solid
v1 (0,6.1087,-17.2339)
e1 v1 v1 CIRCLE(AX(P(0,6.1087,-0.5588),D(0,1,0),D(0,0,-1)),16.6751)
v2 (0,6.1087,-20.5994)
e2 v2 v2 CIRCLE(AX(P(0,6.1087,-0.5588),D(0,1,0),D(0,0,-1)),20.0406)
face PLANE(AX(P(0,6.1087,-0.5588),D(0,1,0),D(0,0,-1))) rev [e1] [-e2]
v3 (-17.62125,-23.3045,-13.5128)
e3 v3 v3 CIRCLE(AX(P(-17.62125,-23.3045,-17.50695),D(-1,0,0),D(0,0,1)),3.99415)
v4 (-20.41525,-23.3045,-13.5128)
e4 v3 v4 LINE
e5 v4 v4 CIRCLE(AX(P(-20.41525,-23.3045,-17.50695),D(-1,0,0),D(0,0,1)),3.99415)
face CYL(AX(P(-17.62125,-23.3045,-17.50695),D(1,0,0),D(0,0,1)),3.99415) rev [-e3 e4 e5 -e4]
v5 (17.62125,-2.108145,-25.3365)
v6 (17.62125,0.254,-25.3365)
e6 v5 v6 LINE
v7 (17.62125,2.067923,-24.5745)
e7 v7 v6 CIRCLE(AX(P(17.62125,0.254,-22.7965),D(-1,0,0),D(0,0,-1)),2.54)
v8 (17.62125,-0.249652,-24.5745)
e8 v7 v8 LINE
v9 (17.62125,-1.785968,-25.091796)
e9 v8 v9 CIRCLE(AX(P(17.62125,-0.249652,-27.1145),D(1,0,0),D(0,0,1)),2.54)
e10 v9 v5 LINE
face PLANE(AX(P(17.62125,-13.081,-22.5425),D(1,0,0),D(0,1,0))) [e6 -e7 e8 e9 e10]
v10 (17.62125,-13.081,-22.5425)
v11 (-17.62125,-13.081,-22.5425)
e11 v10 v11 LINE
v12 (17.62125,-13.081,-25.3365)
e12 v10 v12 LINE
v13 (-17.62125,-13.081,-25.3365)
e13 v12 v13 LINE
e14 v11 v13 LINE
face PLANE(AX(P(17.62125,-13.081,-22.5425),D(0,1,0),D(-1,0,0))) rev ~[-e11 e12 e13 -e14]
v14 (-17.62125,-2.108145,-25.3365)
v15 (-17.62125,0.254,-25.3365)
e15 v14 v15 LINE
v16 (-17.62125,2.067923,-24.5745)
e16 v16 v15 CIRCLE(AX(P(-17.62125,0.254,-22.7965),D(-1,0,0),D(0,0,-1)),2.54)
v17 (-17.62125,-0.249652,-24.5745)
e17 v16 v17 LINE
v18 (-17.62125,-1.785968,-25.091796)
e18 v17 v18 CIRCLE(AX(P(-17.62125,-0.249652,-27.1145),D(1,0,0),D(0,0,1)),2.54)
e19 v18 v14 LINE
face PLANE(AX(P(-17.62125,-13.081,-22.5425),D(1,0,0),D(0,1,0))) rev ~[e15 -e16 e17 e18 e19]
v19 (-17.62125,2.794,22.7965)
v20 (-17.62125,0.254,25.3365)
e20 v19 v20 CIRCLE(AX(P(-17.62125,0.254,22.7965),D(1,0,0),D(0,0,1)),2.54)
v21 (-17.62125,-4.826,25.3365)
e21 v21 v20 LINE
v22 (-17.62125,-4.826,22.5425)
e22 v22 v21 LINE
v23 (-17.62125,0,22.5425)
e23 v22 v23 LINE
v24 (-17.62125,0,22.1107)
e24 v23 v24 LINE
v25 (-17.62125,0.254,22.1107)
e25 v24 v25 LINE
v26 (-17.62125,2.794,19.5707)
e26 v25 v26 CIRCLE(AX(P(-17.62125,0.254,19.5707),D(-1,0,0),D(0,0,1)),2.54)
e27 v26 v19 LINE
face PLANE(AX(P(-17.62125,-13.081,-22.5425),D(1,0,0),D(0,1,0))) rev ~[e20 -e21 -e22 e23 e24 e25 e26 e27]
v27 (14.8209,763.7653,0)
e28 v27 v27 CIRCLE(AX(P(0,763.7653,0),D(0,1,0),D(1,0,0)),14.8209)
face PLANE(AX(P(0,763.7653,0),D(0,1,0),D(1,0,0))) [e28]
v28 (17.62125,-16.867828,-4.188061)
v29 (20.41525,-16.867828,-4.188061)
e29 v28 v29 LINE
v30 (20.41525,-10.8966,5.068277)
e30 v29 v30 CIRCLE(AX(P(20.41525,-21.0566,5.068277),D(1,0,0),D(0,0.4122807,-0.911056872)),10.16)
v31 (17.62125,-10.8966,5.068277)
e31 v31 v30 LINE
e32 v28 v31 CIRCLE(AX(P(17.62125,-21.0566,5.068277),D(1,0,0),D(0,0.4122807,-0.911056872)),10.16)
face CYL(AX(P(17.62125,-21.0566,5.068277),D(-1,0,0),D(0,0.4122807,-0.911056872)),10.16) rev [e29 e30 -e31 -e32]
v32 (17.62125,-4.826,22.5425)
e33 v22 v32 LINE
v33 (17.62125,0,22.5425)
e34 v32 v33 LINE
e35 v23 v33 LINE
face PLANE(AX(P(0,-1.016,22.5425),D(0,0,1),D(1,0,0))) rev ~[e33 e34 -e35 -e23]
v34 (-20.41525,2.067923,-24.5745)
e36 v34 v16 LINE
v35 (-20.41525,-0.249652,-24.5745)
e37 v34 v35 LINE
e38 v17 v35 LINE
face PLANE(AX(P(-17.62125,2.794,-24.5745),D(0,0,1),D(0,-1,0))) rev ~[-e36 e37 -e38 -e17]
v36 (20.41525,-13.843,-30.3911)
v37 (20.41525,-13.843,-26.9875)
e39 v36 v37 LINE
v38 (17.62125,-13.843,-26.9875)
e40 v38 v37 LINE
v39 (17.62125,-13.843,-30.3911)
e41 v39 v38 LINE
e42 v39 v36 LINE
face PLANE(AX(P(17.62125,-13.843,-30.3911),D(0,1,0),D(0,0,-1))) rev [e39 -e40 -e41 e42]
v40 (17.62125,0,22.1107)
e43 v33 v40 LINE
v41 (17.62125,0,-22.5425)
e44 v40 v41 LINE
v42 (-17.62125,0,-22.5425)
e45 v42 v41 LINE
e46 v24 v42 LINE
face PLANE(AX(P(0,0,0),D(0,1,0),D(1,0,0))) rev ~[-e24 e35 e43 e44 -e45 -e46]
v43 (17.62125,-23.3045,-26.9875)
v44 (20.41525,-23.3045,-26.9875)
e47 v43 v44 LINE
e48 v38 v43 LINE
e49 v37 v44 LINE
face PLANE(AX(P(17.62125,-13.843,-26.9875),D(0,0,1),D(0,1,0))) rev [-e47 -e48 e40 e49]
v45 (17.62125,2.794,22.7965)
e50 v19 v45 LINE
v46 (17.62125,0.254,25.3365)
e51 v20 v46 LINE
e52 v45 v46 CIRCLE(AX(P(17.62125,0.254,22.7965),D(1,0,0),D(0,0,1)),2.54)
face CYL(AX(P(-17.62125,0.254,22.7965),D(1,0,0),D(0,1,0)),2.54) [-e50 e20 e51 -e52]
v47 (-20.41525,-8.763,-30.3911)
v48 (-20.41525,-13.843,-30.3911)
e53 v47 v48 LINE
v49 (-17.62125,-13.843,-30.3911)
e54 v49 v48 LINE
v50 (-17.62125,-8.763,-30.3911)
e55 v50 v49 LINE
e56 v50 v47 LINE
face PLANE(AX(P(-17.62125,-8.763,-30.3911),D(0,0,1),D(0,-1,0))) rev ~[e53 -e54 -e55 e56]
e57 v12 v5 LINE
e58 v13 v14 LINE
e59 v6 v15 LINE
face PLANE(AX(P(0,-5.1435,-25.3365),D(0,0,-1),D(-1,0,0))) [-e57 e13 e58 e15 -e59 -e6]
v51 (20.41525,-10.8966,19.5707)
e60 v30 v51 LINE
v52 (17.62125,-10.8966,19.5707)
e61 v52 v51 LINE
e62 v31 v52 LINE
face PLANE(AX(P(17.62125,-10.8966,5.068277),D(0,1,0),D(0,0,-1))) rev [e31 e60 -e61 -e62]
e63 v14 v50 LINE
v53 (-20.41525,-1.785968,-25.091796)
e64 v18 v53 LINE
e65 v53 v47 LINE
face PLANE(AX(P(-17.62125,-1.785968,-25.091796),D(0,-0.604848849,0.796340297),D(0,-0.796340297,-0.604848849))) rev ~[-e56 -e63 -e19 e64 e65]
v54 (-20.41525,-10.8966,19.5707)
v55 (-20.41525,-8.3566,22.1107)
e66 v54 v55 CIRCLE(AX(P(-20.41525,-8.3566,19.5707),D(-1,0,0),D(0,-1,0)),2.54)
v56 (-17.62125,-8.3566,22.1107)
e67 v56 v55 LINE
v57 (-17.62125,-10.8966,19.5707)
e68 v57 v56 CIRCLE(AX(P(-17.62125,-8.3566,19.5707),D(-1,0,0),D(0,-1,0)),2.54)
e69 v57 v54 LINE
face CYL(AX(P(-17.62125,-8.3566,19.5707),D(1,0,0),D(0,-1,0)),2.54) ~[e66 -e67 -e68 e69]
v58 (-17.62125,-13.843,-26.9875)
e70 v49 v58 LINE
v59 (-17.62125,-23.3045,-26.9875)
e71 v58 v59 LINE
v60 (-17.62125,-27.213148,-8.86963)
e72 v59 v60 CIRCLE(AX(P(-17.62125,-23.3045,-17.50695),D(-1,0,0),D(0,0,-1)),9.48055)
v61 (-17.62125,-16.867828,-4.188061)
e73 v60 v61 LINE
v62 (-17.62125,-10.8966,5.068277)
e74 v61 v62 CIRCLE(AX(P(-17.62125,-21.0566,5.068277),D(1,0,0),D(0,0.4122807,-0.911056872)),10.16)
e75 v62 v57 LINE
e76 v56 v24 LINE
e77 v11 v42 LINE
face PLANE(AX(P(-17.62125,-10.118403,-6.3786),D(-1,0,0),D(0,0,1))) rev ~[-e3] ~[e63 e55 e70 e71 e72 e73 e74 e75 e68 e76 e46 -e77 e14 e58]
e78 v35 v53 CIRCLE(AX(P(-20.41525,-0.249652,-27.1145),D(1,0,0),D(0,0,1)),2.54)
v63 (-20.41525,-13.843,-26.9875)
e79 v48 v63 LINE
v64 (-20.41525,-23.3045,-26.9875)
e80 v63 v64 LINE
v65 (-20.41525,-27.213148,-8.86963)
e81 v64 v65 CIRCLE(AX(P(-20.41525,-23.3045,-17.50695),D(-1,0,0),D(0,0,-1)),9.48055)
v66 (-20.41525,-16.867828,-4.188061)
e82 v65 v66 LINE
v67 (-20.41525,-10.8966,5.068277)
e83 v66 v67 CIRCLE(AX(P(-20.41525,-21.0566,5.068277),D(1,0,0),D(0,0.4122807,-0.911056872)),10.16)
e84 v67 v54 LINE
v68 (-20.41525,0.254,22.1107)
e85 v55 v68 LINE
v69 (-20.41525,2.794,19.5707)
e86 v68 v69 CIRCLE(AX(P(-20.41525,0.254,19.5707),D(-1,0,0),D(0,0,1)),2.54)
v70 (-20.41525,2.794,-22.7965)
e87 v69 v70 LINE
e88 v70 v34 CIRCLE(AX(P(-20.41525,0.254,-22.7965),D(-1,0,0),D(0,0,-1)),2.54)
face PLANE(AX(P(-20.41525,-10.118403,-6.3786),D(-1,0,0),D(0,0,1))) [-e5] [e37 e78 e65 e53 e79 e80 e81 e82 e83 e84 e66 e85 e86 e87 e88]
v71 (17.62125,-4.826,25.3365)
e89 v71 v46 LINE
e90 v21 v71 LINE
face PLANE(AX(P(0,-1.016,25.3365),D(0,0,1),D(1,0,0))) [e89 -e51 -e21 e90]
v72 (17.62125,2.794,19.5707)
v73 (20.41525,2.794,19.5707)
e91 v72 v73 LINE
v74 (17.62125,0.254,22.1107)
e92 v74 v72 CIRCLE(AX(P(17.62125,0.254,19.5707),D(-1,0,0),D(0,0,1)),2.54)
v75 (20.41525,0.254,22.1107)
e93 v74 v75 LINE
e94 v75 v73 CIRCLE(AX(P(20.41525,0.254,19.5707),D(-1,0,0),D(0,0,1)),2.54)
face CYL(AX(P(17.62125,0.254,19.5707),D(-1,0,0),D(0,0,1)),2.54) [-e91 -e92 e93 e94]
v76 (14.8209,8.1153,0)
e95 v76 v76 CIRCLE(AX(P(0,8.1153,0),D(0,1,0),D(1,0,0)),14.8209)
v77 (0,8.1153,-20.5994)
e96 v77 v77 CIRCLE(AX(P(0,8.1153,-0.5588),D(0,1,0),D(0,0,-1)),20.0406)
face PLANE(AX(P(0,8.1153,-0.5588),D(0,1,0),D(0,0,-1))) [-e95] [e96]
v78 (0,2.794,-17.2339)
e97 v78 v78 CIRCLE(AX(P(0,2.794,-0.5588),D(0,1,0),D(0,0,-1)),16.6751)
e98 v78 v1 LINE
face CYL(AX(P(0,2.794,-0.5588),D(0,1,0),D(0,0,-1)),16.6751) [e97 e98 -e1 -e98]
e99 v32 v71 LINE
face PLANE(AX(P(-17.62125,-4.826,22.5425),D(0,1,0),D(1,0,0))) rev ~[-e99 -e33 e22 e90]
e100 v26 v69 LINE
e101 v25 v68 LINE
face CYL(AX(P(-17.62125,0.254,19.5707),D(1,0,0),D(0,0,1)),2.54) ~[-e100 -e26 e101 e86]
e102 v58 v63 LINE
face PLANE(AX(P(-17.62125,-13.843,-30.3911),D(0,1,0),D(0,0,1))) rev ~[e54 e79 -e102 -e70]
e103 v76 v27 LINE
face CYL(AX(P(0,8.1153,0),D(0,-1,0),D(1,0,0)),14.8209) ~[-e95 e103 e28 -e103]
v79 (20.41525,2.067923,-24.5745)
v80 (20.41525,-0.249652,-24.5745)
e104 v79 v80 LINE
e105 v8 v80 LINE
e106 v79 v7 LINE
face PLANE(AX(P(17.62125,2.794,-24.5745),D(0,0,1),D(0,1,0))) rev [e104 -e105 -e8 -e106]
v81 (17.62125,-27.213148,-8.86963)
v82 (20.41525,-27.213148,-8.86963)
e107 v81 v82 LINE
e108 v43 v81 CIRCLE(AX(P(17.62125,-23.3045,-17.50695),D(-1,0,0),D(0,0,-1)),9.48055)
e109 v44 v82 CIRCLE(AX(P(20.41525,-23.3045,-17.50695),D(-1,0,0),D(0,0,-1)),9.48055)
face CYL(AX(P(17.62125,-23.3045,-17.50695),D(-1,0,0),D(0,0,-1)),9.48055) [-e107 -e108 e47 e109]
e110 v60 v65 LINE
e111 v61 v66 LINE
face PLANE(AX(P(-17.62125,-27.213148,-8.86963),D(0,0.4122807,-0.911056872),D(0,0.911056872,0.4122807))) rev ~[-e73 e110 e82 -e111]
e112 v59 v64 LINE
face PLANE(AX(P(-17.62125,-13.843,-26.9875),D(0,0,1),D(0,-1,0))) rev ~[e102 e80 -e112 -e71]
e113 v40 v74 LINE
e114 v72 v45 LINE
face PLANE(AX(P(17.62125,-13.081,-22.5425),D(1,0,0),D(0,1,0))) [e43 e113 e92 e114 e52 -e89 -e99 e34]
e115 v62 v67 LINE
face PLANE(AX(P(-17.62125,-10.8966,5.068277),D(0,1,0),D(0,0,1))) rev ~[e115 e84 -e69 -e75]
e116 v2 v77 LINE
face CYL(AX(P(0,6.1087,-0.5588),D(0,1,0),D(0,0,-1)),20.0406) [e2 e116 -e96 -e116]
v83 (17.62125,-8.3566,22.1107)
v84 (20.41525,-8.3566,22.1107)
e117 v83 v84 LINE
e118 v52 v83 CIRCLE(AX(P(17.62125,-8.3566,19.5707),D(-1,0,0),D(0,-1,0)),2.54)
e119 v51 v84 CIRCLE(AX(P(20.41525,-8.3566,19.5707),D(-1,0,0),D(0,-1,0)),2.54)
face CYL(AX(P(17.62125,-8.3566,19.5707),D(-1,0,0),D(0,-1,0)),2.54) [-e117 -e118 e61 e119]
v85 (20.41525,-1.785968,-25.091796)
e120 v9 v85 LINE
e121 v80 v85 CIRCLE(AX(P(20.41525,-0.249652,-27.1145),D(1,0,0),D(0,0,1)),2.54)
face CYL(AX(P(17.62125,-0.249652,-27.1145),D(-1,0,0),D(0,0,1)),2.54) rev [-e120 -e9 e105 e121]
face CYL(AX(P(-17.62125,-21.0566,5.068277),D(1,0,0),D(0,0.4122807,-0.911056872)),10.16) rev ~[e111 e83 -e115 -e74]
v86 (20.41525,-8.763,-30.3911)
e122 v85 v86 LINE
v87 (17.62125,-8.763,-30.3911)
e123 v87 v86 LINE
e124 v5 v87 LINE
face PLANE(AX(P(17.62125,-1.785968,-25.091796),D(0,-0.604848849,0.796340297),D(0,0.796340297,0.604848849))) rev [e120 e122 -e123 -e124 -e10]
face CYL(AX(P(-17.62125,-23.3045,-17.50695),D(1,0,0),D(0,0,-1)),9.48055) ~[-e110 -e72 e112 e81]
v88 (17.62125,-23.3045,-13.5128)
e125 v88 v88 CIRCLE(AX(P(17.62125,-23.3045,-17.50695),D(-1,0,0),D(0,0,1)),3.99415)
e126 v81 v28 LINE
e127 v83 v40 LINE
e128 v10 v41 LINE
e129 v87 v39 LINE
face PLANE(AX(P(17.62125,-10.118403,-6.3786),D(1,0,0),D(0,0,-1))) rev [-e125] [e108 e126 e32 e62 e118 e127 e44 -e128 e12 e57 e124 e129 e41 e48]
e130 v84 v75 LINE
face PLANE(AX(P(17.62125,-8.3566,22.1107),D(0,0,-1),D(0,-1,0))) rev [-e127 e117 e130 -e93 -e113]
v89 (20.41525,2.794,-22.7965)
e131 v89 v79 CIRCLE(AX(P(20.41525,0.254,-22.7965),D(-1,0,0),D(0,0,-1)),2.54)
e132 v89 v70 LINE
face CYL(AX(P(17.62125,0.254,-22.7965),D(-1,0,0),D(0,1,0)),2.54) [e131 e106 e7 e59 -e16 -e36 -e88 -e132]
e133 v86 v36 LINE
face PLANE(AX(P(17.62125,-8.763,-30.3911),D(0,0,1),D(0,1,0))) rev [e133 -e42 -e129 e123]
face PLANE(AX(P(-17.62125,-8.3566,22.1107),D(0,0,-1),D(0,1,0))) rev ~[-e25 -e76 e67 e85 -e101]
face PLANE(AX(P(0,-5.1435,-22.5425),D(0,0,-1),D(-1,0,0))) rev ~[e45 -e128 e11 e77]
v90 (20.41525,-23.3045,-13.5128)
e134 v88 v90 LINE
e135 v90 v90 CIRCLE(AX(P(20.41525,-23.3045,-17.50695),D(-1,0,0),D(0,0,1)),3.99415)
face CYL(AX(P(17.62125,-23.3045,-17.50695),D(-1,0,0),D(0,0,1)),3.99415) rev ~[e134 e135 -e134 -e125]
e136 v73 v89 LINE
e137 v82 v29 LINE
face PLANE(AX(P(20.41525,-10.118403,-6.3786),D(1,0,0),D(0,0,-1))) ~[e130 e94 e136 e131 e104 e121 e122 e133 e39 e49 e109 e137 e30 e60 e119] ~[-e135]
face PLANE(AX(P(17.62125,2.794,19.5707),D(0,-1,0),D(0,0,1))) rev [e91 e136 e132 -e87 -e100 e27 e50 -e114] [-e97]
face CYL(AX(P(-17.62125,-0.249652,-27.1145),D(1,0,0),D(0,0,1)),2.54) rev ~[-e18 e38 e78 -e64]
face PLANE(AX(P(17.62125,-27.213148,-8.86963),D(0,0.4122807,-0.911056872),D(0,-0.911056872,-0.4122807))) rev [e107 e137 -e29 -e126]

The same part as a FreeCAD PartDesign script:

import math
import FreeCAD as App
import Part
import Sketcher
Q = App.Units.Quantity


def edges_at(feature, points):
    """Names of the edges that pass closest to the given points."""
    edges = feature.Shape.Edges
    near = lambda p: min(range(len(edges)), key=lambda i: edges[i].distToShape(Part.Vertex(*p))[0])
    return sorted({f"Edge{near(p) + 1}" for p in points})


def add_polygon(sketch, points):
    """Adds a closed chain of lines whose ends are joined by coincident constraints."""
    first, n = sketch.GeometryCount, len(points)
    for a, b in zip(points, points[1:] + points[:1]):
        sketch.addGeometry(Part.LineSegment(App.Vector(*a, 0), App.Vector(*b, 0)), False)
    for i in range(n):
        sketch.addConstraint(Sketcher.Constraint("Coincident", first + i, 2, first + (i + 1) % n, 1))

doc = App.newDocument("Part")
body = doc.addObject("PartDesign::Body", "Body")

# Sketch on XZ plane
sketch1 = doc.addObject("Sketcher::SketchObject", "Sketch")
body.addObject(sketch1)
sketch1.AttachmentSupport = (doc.XZ_Plane, [""])
sketch1.MapMode = "FlatFace"
add_polygon(sketch1, [(-17.62125, -22.5425), (-17.62125, 22.5425), (17.62125, 22.5425), (17.62125, -22.5425)])  # lines 0-3
sketch1.addConstraint([
    Sketcher.Constraint("Vertical", 0),
    Sketcher.Constraint("Horizontal", 1),
    Sketcher.Constraint("Vertical", 2),
    Sketcher.Constraint("Horizontal", 3),
    Sketcher.Constraint("Symmetric", 0, 2, 2, 2, -1, 1),
    Sketcher.Constraint("DistanceY", 0, 1, 0, 2, Q("1.775 in")),
    Sketcher.Constraint("DistanceX", 1, 1, 1, 2, Q("1.3875 in")),
])
pad1 = doc.addObject("PartDesign::Pad", "Pad")
body.addObject(pad1)
pad1.Profile = sketch1
pad1.Length = Q("0.11 in")
pad1.Reversed = True

# Sketch on XY plane
sketch2 = doc.addObject("Sketcher::SketchObject", "Sketch001")
body.addObject(sketch2)
sketch2.AttachmentSupport = (doc.XY_Plane, [""])
sketch2.MapMode = "FlatFace"
sketch2.AttachmentOffset = App.Placement(App.Vector(0, 0, 0.8875 * 25.4), App.Rotation())
add_polygon(sketch2, [(-17.62125, 2.794), (-17.62125, -4.826), (17.62125, -4.826), (17.62125, 2.794)])  # lines 0-3
sketch2.addConstraint([
    Sketcher.Constraint("Vertical", 0),
    Sketcher.Constraint("Horizontal", 1),
    Sketcher.Constraint("Vertical", 2),
    Sketcher.Constraint("Horizontal", 3),
    Sketcher.Constraint("DistanceY", 0, 2, 0, 1, Q("0.3 in")),
    Sketcher.Constraint("DistanceY", 0, 2, -1, 1, Q("0.19 in")),
    Sketcher.Constraint("DistanceX", 1, 1, 1, 2, Q("1.3875 in")),
    Sketcher.Constraint("DistanceX", 0, 2, -1, 1, Q("17.62125 mm")),
])
pad2 = doc.addObject("PartDesign::Pad", "Pad001")
body.addObject(pad2)
pad2.Profile = sketch2
pad2.Length = Q("0.11 in")

# Sketch on XY plane
sketch3 = doc.addObject("Sketcher::SketchObject", "Sketch002")
body.addObject(sketch3)
sketch3.AttachmentSupport = (doc.XY_Plane, [""])
sketch3.MapMode = "FlatFace"
sketch3.AttachmentOffset = App.Placement(App.Vector(0, 0, -0.8875 * 25.4), App.Rotation())
add_polygon(sketch3, [(17.62125, 2.794), (17.62125, -13.081), (-17.62125, -13.081), (-17.62125, 2.794)])  # lines 0-3
sketch3.addConstraint([
    Sketcher.Constraint("Vertical", 0),
    Sketcher.Constraint("Horizontal", 1),
    Sketcher.Constraint("Vertical", 2),
    Sketcher.Constraint("Horizontal", 3),
    Sketcher.Constraint("DistanceY", 0, 2, 0, 1, Q("0.625 in")),
    Sketcher.Constraint("DistanceY", -1, 1, 2, 2, Q("0.11 in")),
    Sketcher.Constraint("DistanceX", 1, 2, 1, 1, Q("1.3875 in")),
    Sketcher.Constraint("DistanceX", -1, 1, 0, 2, Q("17.62125 mm")),
])
pad3 = doc.addObject("PartDesign::Pad", "Pad002")
body.addObject(pad3)
pad3.Profile = sketch3
pad3.Length = Q("0.11 in")
pad3.Reversed = True

# Sketch on YZ plane
sketch4 = doc.addObject("Sketcher::SketchObject", "Sketch003")
body.addObject(sketch4)
sketch4.AttachmentSupport = (doc.YZ_Plane, [""])
sketch4.MapMode = "FlatFace"
sketch4.AttachmentOffset = App.Placement(App.Vector(0, 0, -17.62125), App.Rotation())
sketch4.addGeometry([
    Part.LineSegment(App.Vector(2.794, -24.5745, 0), App.Vector(-0.249652, -24.5745, 0)),  # 0
    Part.ArcOfCircle(Part.Circle(App.Vector(-0.249652, -27.1145, 0), App.Vector(0, 0, 1), 2.54), math.radians(90), math.radians(127.217966)),  # 1
    Part.LineSegment(App.Vector(-1.785968, -25.091796, 0), App.Vector(-8.763, -30.3911, 0)),  # 2
    Part.LineSegment(App.Vector(-8.763, -30.3911, 0), App.Vector(-13.843, -30.3911, 0)),  # 3
    Part.LineSegment(App.Vector(-13.843, -30.3911, 0), App.Vector(-13.843, -26.9875, 0)),  # 4
    Part.LineSegment(App.Vector(-13.843, -26.9875, 0), App.Vector(-23.3045, -26.9875, 0)),  # 5
    Part.ArcOfCircle(Part.Circle(App.Vector(-23.3045, -17.50695, 0), App.Vector(0, 0, 1), 9.48055), math.radians(114.348186), math.radians(270)),  # 6
    Part.LineSegment(App.Vector(-27.213148, -8.86963, 0), App.Vector(-16.867828, -4.188061, 0)),  # 7
    Part.ArcOfCircle(Part.Circle(App.Vector(-21.0566, 5.068277, 0), App.Vector(0, 0, 1), 10.16), math.radians(-65.651814), math.radians(0)),  # 8
    Part.LineSegment(App.Vector(-10.8966, 5.068277, 0), App.Vector(-10.8966, 19.5707, 0)),  # 9
    Part.ArcOfCircle(Part.Circle(App.Vector(-8.3566, 19.5707, 0), App.Vector(0, 0, 1), 2.54), math.radians(90), math.radians(180)),  # 10
    Part.LineSegment(App.Vector(-8.3566, 22.1107, 0), App.Vector(0.254, 22.1107, 0)),  # 11
    Part.ArcOfCircle(Part.Circle(App.Vector(0.254, 19.5707, 0), App.Vector(0, 0, 1), 2.54), math.radians(0), math.radians(90)),  # 12
    Part.LineSegment(App.Vector(2.794, 19.5707, 0), App.Vector(2.794, -24.5745, 0)),  # 13
    Part.Circle(App.Vector(-23.3045, -17.50695, 0), App.Vector(0, 0, 1), 3.99415),  # 14
], False)
sketch4.addConstraint([
    Sketcher.Constraint("Tangent", 0, 2, 1, 1),
    Sketcher.Constraint("Tangent", 1, 2, 2, 1),
    Sketcher.Constraint("Coincident", 2, 2, 3, 1),
    Sketcher.Constraint("Coincident", 3, 2, 4, 1),
    Sketcher.Constraint("Coincident", 4, 2, 5, 1),
    Sketcher.Constraint("Tangent", 5, 2, 6, 2),
    Sketcher.Constraint("Tangent", 6, 1, 7, 1),
    Sketcher.Constraint("Tangent", 7, 2, 8, 1),
    Sketcher.Constraint("Tangent", 8, 2, 9, 1),
    Sketcher.Constraint("Tangent", 9, 2, 10, 2),
    Sketcher.Constraint("Tangent", 10, 1, 11, 1),
    Sketcher.Constraint("Tangent", 11, 2, 12, 2),
    Sketcher.Constraint("Tangent", 12, 1, 13, 1),
    Sketcher.Constraint("Coincident", 13, 2, 0, 1),
    Sketcher.Constraint("Horizontal", 0),
    Sketcher.Constraint("Horizontal", 3),
    Sketcher.Constraint("Vertical", 4),
    Sketcher.Constraint("Horizontal", 5),
    Sketcher.Constraint("Vertical", 9),
    Sketcher.Constraint("Horizontal", 11),
    Sketcher.Constraint("Vertical", 13),
    Sketcher.Constraint("Coincident", 14, 3, 6, 3),
    Sketcher.Constraint("Equal", 1, 10),
    Sketcher.Constraint("Equal", 10, 12),
    Sketcher.Constraint("Radius", 1, Q("0.1 in")),
    Sketcher.Constraint("Radius", 8, Q("0.4 in")),
    Sketcher.Constraint("DistanceX", 3, 2, 3, 1, Q("0.2 in")),
    Sketcher.Constraint("Diameter", 14, Q("0.3145 in")),
    Sketcher.Constraint("DistanceX", 11, 1, 11, 2, Q("0.339 in")),
    Sketcher.Constraint("DistanceY", 4, 1, 4, 2, Q("0.134 in")),
    Sketcher.Constraint("DistanceY", 13, 2, 13, 1, Q("1.738 in")),
    Sketcher.Constraint("DistanceX", -1, 1, 12, 3, Q("0.01 in")),
    Sketcher.Constraint("DistanceX", 5, 2, 5, 1, Q("0.3725 in")),
    Sketcher.Constraint("DistanceX", 2, 2, -1, 1, Q("0.345 in")),
    Sketcher.Constraint("DistanceY", 4, 2, -1, 1, Q("1.0625 in")),
    Sketcher.Constraint("Radius", 6, Q("9.48055 mm")),
    Sketcher.Constraint("DistanceY", 2, 2, 1, 3, Q("0.129 in")),
    Sketcher.Constraint("Distance", 2, Q("8.76137 mm")),
    Sketcher.Constraint("DistanceY", 9, 1, 9, 2, Q("14.502423 mm")),
])
pad4 = doc.addObject("PartDesign::Pad", "Pad003")
body.addObject(pad4)
pad4.Profile = sketch4
pad4.Length = Q("0.11 in")
pad4.Reversed = True
doc.recompute()

mirrored = doc.addObject("PartDesign::Mirrored", "Mirrored")
body.addObject(mirrored)
mirrored.Originals = [pad4]
mirrored.MirrorPlane = (doc.YZ_Plane, [""])
body.Tip = mirrored

# Sketch on YZ plane
sketch5 = doc.addObject("Sketcher::SketchObject", "Sketch004")
body.addObject(sketch5)
sketch5.AttachmentSupport = (doc.YZ_Plane, [""])
sketch5.MapMode = "FlatFace"
add_polygon(sketch5, [(2.794, -0.5588), (2.794, -17.2339), (6.1087, -17.2339), (6.1087, -20.5994), (8.1153, -20.5994), (8.1153, -0.5588)])  # lines 0-5
sketch5.addGeometry(Part.LineSegment(App.Vector(2.794, -0.5588, 0), App.Vector(8.1153, -0.5588, 0)), True)  # axis
sketch5.addConstraint([
    Sketcher.Constraint("Vertical", 0),
    Sketcher.Constraint("Horizontal", 1),
    Sketcher.Constraint("Vertical", 2),
    Sketcher.Constraint("Horizontal", 3),
    Sketcher.Constraint("Vertical", 4),
    Sketcher.Constraint("Horizontal", 5),
    Sketcher.Constraint("Horizontal", 6),
    Sketcher.Constraint("Coincident", 6, 1, 5, 2),
    Sketcher.Constraint("Vertical", 3, 2, 6, 2),
    Sketcher.Constraint("DistanceX", 3, 1, 3, 2, Q("0.079 in")),
    Sketcher.Constraint("DistanceY", 4, 1, 4, 2, Q("0.789 in")),
    Sketcher.Constraint("DistanceX", -1, 1, 0, 2, Q("0.11 in")),
    Sketcher.Constraint("DistanceX", 1, 1, 1, 2, Q("0.1305 in")),
    Sketcher.Constraint("DistanceY", 0, 2, 0, 1, Q("0.6565 in")),
    Sketcher.Constraint("DistanceY", 2, 2, -1, 1, Q("0.811 in")),
])
revolution = doc.addObject("PartDesign::Revolution", "Revolution")
body.addObject(revolution)
revolution.Profile = sketch5
revolution.ReferenceAxis = (sketch5, ["Axis0"])
revolution.Angle = 360

# Sketch on XZ plane
sketch6 = doc.addObject("Sketcher::SketchObject", "Sketch005")
body.addObject(sketch6)
sketch6.AttachmentSupport = (doc.XZ_Plane, [""])
sketch6.MapMode = "FlatFace"
sketch6.AttachmentOffset = App.Placement(App.Vector(0, 0, -0.3195 * 25.4), App.Rotation())
sketch6.addGeometry(Part.Circle(App.Vector(0, 0, 0), App.Vector(0, 0, 1), 14.8209), False)
sketch6.addConstraint([
    Sketcher.Constraint("Coincident", 0, 3, -1, 1),
    Sketcher.Constraint("Diameter", 0, Q("1.167 in")),
])
pad5 = doc.addObject("PartDesign::Pad", "Pad004")
body.addObject(pad5)
pad5.Profile = sketch6
pad5.Length = Q("29.75 in")
pad5.Reversed = True
doc.recompute()

fillet = doc.addObject("PartDesign::Fillet", "Fillet")
body.addObject(fillet)
fillet.Base = (pad5, edges_at(pad5, [(0, 2.794, -25.337), (0, 2.794, 25.337)]))
fillet.Radius = Q("0.1 in")

doc.recompute()
